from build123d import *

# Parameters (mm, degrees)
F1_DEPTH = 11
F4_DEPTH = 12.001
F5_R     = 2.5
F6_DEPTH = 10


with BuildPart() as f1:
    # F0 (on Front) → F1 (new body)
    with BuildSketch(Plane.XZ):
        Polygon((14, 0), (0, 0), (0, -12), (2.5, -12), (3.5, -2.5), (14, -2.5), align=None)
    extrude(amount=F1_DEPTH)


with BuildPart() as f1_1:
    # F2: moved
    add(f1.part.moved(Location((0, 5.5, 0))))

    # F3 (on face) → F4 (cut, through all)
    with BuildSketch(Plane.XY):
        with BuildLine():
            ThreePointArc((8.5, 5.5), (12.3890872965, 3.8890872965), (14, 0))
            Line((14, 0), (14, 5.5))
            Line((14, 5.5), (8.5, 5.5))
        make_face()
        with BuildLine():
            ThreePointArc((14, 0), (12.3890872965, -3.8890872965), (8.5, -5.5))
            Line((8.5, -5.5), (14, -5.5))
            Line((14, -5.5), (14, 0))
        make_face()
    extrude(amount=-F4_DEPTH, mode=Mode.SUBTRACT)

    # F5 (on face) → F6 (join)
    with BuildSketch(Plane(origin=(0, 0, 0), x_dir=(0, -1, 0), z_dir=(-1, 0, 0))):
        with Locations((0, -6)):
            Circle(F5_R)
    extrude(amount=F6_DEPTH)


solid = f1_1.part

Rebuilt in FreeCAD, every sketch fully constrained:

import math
import FreeCAD as App
import Part
import Sketcher
Q = App.Units.Quantity


def add_polygon(sketch, points):
    """Adds a closed chain of lines whose ends are joined by coincident constraints."""
    first, n = sketch.GeometryCount, len(points)
    for a, b in zip(points, points[1:] + points[:1]):
        sketch.addGeometry(Part.LineSegment(App.Vector(*a, 0), App.Vector(*b, 0)), False)
    for i in range(n):
        sketch.addConstraint(Sketcher.Constraint("Coincident", first + i, 2, first + (i + 1) % n, 1))

doc = App.newDocument("Part")
body = doc.addObject("PartDesign::Body", "Body")

# Sketch on XZ plane
sketch1 = doc.addObject("Sketcher::SketchObject", "Sketch")
body.addObject(sketch1)
sketch1.AttachmentSupport = (doc.XZ_Plane, [""])
sketch1.MapMode = "FlatFace"
add_polygon(sketch1, [(14, 0), (0, 0), (0, -12), (2.5, -12), (3.5, -2.5), (14, -2.5)])  # lines 0-5
sketch1.addConstraint(Sketcher.Constraint("Horizontal", 0))
sketch1.addConstraint(Sketcher.Constraint("Vertical", 1))
sketch1.addConstraint(Sketcher.Constraint("Horizontal", 2))
sketch1.addConstraint(Sketcher.Constraint("Horizontal", 4))
sketch1.addConstraint(Sketcher.Constraint("Vertical", 5))
sketch1.addConstraint(Sketcher.Constraint("Coincident", 0, 2, -1, 1))
sketch1.addConstraint(Sketcher.Constraint("Equal", 2, 5))
sketch1.addConstraint(Sketcher.Constraint("DistanceX", 0, 2, 0, 1, Q("14 mm")))
sketch1.addConstraint(Sketcher.Constraint("DistanceY", 1, 2, 1, 1, Q("12 mm")))
sketch1.addConstraint(Sketcher.Constraint("DistanceX", 2, 1, 2, 2, Q("2.5 mm")))
sketch1.addConstraint(Sketcher.Constraint("DistanceX", 4, 1, 4, 2, Q("10.5 mm")))
pad1 = doc.addObject("PartDesign::Pad", "Pad")
body.addObject(pad1)
pad1.Profile = sketch1
pad1.Length = 11
body2 = doc.addObject("PartDesign::Body", "Body001")
doc.recompute()

body.Placement = App.Placement(App.Vector(0, 5.5, 0), App.Rotation(App.Vector(0, 0, 1), 0))
boolean = doc.addObject("PartDesign::Boolean", "Boolean")
body2.addObject(boolean)
boolean.Type = "Fuse"
boolean.addObjects([body])

# Sketch on XY plane
sketch2 = doc.addObject("Sketcher::SketchObject", "Sketch001")
body2.addObject(sketch2)
sketch2.AttachmentSupport = (doc.getObject("XY_Plane001"), [""])
sketch2.MapMode = "FlatFace"
sketch2.addGeometry(Part.ArcOfCircle(Part.Circle(App.Vector(8, 0, 0), App.Vector(0, 0, 1), 6), math.radians(0), math.radians(90)), False)
sketch2.addGeometry(Part.LineSegment(App.Vector(14, 0, 0), App.Vector(14, 6, 0)), False)
sketch2.addGeometry(Part.LineSegment(App.Vector(14, 6, 0), App.Vector(8, 6, 0)), False)
sketch2.addGeometry(Part.ArcOfCircle(Part.Circle(App.Vector(8, 0, 0), App.Vector(0, 0, 1), 6), math.radians(-90), math.radians(0)), False)
sketch2.addGeometry(Part.LineSegment(App.Vector(8, -6, 0), App.Vector(14, -6, 0)), False)
sketch2.addGeometry(Part.LineSegment(App.Vector(14, -6, 0), App.Vector(14, 0, 0)), False)
sketch2.addConstraint(Sketcher.Constraint("Tangent", 0, 1, 1, 1))
sketch2.addConstraint(Sketcher.Constraint("Coincident", 1, 2, 2, 1))
sketch2.addConstraint(Sketcher.Constraint("Tangent", 2, 2, 0, 2))
sketch2.addConstraint(Sketcher.Constraint("Tangent", 3, 1, 4, 1))
sketch2.addConstraint(Sketcher.Constraint("Coincident", 4, 2, 5, 1))
sketch2.addConstraint(Sketcher.Constraint("Tangent", 5, 2, 3, 2))
sketch2.addConstraint(Sketcher.Constraint("Vertical", 1))
sketch2.addConstraint(Sketcher.Constraint("Horizontal", 2))
sketch2.addConstraint(Sketcher.Constraint("Horizontal", 4))
sketch2.addConstraint(Sketcher.Constraint("Vertical", 5))
sketch2.addConstraint(Sketcher.Constraint("Coincident", 3, 3, 0, 3))
sketch2.addConstraint(Sketcher.Constraint("Equal", 0, 3))
sketch2.addConstraint(Sketcher.Constraint("PointOnObject", 0, 3, -1))
sketch2.addConstraint(Sketcher.Constraint("Radius", 0, Q("5.5 mm")))
sketch2.addConstraint(Sketcher.Constraint("DistanceX", -1, 1, 0, 1, Q("14 mm")))
pocket1 = doc.addObject("PartDesign::Pocket", "Pocket")
body2.addObject(pocket1)
pocket1.Profile = sketch2
pocket1.Type = "ThroughAll"

# Sketch on YZ plane
sketch3 = doc.addObject("Sketcher::SketchObject", "Sketch002")
body2.addObject(sketch3)
sketch3.AttachmentSupport = (doc.getObject("YZ_Plane001"), [""])
sketch3.MapMode = "FlatFace"
sketch3.addGeometry(Part.Circle(App.Vector(0, -6, 0), App.Vector(0, 0, 1), 2.5), False)
sketch3.addConstraint(Sketcher.Constraint("PointOnObject", 0, 3, -2))
sketch3.addConstraint(Sketcher.Constraint("Diameter", 0, Q("5 mm")))
sketch3.addConstraint(Sketcher.Constraint("DistanceY", 0, 3, -1, 1, Q("6 mm")))
pad2 = doc.addObject("PartDesign::Pad", "Pad001")
body2.addObject(pad2)
pad2.Profile = sketch3
pad2.Length = 10
pad2.Reversed = True

doc.recompute()
